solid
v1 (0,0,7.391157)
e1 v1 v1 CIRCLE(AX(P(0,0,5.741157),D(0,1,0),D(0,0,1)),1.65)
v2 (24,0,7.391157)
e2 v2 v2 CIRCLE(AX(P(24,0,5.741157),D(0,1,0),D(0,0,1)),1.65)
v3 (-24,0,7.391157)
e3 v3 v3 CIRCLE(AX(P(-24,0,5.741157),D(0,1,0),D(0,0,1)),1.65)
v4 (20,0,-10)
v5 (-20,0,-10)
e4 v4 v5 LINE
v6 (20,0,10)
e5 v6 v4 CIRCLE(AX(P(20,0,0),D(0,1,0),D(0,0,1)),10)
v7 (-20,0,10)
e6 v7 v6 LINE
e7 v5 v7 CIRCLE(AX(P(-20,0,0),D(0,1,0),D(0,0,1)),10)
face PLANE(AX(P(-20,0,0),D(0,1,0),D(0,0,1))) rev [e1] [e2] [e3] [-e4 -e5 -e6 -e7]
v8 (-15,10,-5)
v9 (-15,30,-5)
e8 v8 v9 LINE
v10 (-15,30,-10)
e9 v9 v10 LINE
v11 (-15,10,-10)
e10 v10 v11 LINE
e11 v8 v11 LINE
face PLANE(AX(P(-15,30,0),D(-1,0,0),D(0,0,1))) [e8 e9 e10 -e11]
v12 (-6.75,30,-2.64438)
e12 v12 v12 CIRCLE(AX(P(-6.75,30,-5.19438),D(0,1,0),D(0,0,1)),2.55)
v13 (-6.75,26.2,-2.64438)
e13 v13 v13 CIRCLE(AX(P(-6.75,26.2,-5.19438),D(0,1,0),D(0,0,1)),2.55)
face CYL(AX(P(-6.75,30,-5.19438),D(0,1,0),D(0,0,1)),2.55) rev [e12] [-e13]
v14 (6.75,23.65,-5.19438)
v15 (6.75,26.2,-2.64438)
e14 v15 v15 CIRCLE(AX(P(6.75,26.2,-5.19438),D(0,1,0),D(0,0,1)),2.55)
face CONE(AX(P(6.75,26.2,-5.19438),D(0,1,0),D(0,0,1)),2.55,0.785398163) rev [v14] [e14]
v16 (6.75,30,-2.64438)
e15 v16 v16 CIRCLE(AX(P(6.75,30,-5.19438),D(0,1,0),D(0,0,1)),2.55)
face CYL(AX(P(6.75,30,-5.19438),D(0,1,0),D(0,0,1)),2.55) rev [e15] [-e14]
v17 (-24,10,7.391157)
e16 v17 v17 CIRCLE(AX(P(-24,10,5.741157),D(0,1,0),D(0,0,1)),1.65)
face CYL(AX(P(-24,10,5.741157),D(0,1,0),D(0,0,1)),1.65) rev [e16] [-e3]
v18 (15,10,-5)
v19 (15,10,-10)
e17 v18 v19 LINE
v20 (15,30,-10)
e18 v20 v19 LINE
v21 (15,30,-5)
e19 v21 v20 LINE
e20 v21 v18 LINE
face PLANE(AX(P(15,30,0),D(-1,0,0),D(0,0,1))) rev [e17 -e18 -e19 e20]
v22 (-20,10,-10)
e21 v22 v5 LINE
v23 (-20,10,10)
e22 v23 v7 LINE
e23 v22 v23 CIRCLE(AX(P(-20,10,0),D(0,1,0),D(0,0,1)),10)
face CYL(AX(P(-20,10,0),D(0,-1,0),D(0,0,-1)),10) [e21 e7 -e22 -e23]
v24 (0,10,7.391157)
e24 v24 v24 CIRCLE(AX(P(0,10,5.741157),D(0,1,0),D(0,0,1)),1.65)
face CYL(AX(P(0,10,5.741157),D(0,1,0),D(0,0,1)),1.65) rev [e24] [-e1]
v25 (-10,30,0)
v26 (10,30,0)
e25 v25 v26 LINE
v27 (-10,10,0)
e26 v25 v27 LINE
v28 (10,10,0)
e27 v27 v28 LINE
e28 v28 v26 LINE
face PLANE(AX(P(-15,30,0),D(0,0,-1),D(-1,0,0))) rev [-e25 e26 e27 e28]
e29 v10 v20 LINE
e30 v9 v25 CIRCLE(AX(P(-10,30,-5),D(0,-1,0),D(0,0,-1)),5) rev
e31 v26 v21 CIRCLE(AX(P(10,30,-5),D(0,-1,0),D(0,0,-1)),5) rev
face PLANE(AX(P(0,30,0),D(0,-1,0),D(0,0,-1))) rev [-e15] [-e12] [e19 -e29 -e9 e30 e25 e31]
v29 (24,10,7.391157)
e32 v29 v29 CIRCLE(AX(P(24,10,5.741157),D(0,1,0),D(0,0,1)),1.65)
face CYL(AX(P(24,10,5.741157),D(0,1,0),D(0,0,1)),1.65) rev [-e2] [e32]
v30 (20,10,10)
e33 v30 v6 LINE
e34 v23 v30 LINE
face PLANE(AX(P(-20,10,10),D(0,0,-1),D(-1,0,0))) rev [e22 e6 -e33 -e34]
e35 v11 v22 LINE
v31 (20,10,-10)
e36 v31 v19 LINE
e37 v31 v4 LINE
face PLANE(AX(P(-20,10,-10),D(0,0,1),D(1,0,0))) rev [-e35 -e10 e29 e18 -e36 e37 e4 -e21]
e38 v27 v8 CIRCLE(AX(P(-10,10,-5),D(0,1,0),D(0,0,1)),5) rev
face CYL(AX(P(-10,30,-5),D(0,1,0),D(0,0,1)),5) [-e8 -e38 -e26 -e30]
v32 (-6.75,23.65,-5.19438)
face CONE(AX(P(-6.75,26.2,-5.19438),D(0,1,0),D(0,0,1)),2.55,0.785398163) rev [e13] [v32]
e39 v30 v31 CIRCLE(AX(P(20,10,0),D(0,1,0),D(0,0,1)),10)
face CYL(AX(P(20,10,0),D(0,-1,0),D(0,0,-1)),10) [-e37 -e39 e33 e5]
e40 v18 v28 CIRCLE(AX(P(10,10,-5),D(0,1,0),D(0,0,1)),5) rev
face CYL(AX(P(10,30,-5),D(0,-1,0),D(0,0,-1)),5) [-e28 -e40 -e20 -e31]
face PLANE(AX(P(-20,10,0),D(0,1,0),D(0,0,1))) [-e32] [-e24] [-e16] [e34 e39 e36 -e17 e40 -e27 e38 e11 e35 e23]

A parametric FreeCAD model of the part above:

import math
import FreeCAD as App
import Part
import Sketcher
from FreeCAD import Vector
Q = App.Units.Quantity


def edges_at(feature, points):
    """Names of the edges that pass closest to the given points."""
    edges = feature.Shape.Edges
    near = lambda p: min(range(len(edges)), key=lambda i: edges[i].distToShape(Part.Vertex(*p))[0])
    return sorted({f"Edge{near(p) + 1}" for p in points})


def add_polygon(sketch, points):
    """Adds a closed chain of lines whose ends are joined by coincident constraints."""
    first, n = sketch.GeometryCount, len(points)
    for a, b in zip(points, points[1:] + points[:1]):
        sketch.addGeometry(Part.LineSegment(App.Vector(*a, 0), App.Vector(*b, 0)), False)
    for i in range(n):
        sketch.addConstraint(Sketcher.Constraint("Coincident", first + i, 2, first + (i + 1) % n, 1))

doc = App.newDocument("Part")
body = doc.addObject("PartDesign::Body", "Body")

# Sketch on XZ plane
sketch1 = body.newObject("Sketcher::SketchObject", "Sketch")
sketch1.AttachmentSupport = (doc.getObject("XZ_Plane"), [""])
sketch1.MapMode = "FlatFace"
sketch1.addGeometry([
    Part.LineSegment(Vector(20, -10, 0), Vector(-20, -10, 0)),
    Part.ArcOfCircle(Part.Circle(Vector(-20, 0, 0), Vector(0, 0, 1), 10), math.radians(90), math.radians(270)),
    Part.LineSegment(Vector(-20, 10, 0), Vector(20, 10, 0)),
    Part.ArcOfCircle(Part.Circle(Vector(20, 0, 0), Vector(0, 0, 1), 10), math.radians(-90), math.radians(90)),
], False)
sketch1.addConstraint([
    Sketcher.Constraint("Tangent", 0, 2, 1, 2),
    Sketcher.Constraint("Tangent", 1, 1, 2, 1),
    Sketcher.Constraint("Tangent", 2, 2, 3, 2),
    Sketcher.Constraint("Tangent", 3, 1, 0, 1),
    Sketcher.Constraint("Horizontal", 0),
    Sketcher.Constraint("Horizontal", 2),
    Sketcher.Constraint("Symmetric", 1, 3, 3, 3, -1, 1),
    Sketcher.Constraint("Radius", 1, Q("10 mm")),
    Sketcher.Constraint("DistanceX", 0, 2, 0, 1, Q("40 mm")),
])
pad1 = body.newObject("PartDesign::Pad", "Pad")
pad1.Profile = sketch1
pad1.Length = 10
pad1.Reversed = True

# Sketch on XZ plane
sketch2 = body.newObject("Sketcher::SketchObject", "Sketch001")
sketch2.AttachmentSupport = (doc.getObject("XZ_Plane"), [""])
sketch2.MapMode = "FlatFace"
sketch2.AttachmentOffset = App.Placement(Vector(0, 0, -10), App.Rotation())
sketch2.addGeometry([
    Part.Circle(Vector(0, 5.741157, 0), Vector(0, 0, 1), 1.65),
    Part.Circle(Vector(24, 5.741157, 0), Vector(0, 0, 1), 1.65),
    Part.Circle(Vector(-24, 5.741157, 0), Vector(0, 0, 1), 1.65),
], False)
sketch2.addConstraint([
    Sketcher.Constraint("Equal", 0, 1),
    Sketcher.Constraint("Equal", 1, 2),
    Sketcher.Constraint("Symmetric", 1, 3, 2, 3, -2),
    Sketcher.Constraint("PointOnObject", 0, 3, -2),
    Sketcher.Constraint("Horizontal", 0, 3, 1, 3),
    Sketcher.Constraint("Diameter", 0, Q("3.3 mm")),
    Sketcher.Constraint("DistanceX", -1, 1, 1, 3, Q("24 mm")),
    Sketcher.Constraint("DistanceY", -1, 1, 0, 3, Q("5.741157 mm")),
])
doc.recompute()
hole = body.newObject("PartDesign::Hole", "Hole")
hole.Profile = sketch2
hole.ThreadType = "None"
hole.Diameter = 3.3
hole.DepthType = "ThroughAll"
hole.Reversed = True

# Sketch on XZ plane
sketch3 = body.newObject("Sketcher::SketchObject", "Sketch002")
sketch3.AttachmentSupport = (doc.getObject("XZ_Plane"), [""])
sketch3.MapMode = "FlatFace"
sketch3.AttachmentOffset = App.Placement(Vector(0, 0, -10), App.Rotation())
add_polygon(sketch3, [(-15, -10), (-15, 0), (15, 0), (15, -10)])  # lines 0-3
sketch3.addConstraint([
    Sketcher.Constraint("Vertical", 0),
    Sketcher.Constraint("Horizontal", 1),
    Sketcher.Constraint("Vertical", 2),
    Sketcher.Constraint("Horizontal", 3),
    Sketcher.Constraint("Symmetric", 0, 2, 1, 2, -1, 1),
    Sketcher.Constraint("DistanceX", 1, 1, 1, 2, Q("30 mm")),
    Sketcher.Constraint("DistanceY", 0, 1, 0, 2, Q("10 mm")),
])
pad2 = body.newObject("PartDesign::Pad", "Pad001")
pad2.Profile = sketch3
pad2.Length = 20
pad2.Reversed = True
doc.recompute()

fillet = body.newObject("PartDesign::Fillet", "Fillet")
fillet.Base = (pad2, edges_at(pad2, [(-15, 20, 0), (15, 20, 0)]))
fillet.Radius = 5

# Sketch on XZ plane
sketch4 = body.newObject("Sketcher::SketchObject", "Sketch003")
sketch4.AttachmentSupport = (doc.getObject("XZ_Plane"), [""])
sketch4.MapMode = "FlatFace"
sketch4.AttachmentOffset = App.Placement(Vector(0, 0, -30), App.Rotation())
sketch4.addGeometry([
    Part.Circle(Vector(-6.75, -5.19438, 0), Vector(0, 0, 1), 2.55),
    Part.Circle(Vector(6.75, -5.19438, 0), Vector(0, 0, 1), 2.55),
], False)
sketch4.addConstraint([
    Sketcher.Constraint("Equal", 0, 1),
    Sketcher.Constraint("Symmetric", 0, 3, 1, 3, -2),
    Sketcher.Constraint("Diameter", 0, Q("5.1 mm")),
    Sketcher.Constraint("DistanceX", 0, 3, 1, 3, Q("13.5 mm")),
    Sketcher.Constraint("DistanceY", 0, 3, -1, 1, Q("5.19438 mm")),
])
doc.recompute()
hole2 = body.newObject("PartDesign::Hole", "Hole001")
hole2.Profile = sketch4
hole2.ThreadType = "None"
hole2.Diameter = 5.1
hole2.DepthType = "Dimension"
hole2.Depth = 3.8
hole2.DrillPoint = "Angled"
hole2.DrillPointAngle = 90
hole2.Reversed = True

doc.recompute()
